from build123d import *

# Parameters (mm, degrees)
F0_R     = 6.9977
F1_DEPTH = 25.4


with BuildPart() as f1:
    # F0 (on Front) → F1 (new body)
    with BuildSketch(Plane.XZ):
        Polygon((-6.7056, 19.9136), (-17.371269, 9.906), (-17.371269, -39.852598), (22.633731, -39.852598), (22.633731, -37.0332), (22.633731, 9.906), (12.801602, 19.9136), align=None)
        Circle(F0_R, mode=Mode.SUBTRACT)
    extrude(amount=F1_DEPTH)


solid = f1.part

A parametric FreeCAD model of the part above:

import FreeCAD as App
import Part
import Sketcher
Q = App.Units.Quantity

doc = App.newDocument("Part")
body = doc.addObject("PartDesign::Body", "Body")

sketch1 = body.newObject("Sketcher::SketchObject", "Sketch")
sketch1.AttachmentSupport = (doc.getObject("XZ_Plane"), [""])
sketch1.MapMode = "FlatFace"
sketch1.addGeometry([
    Part.LineSegment(App.Vector(-7, 20, 0), App.Vector(-17, 10, 0)),
    Part.LineSegment(App.Vector(-17, 10, 0), App.Vector(-17, -40, 0)),
    Part.LineSegment(App.Vector(-17, -40, 0), App.Vector(23, -40, 0)),
    Part.LineSegment(App.Vector(23, -40, 0), App.Vector(23, 10, 0)),
    Part.LineSegment(App.Vector(23, 10, 0), App.Vector(13, 20, 0)),
    Part.LineSegment(App.Vector(13, 20, 0), App.Vector(-7, 20, 0)),
    Part.Circle(App.Vector(0, 0, 0), App.Vector(0, 0, 1), 7),
], False)
sketch1.addConstraint([
    Sketcher.Constraint("Coincident", 0, 2, 1, 1),
    Sketcher.Constraint("Coincident", 1, 2, 2, 1),
    Sketcher.Constraint("Coincident", 2, 2, 3, 1),
    Sketcher.Constraint("Coincident", 3, 2, 4, 1),
    Sketcher.Constraint("Coincident", 4, 2, 5, 1),
    Sketcher.Constraint("Coincident", 5, 2, 0, 1),
    Sketcher.Constraint("Vertical", 1),
    Sketcher.Constraint("Horizontal", 2),
    Sketcher.Constraint("Vertical", 3),
    Sketcher.Constraint("Horizontal", 5),
    Sketcher.Constraint("Coincident", 6, 3, -1, 1),
    Sketcher.Constraint("Horizontal", 0, 2, 3, 2),
    Sketcher.Constraint("Diameter", 6, Q("0.551 in")),
    Sketcher.Constraint("DistanceX", 2, 1, 2, 2, Q("1.575 in")),
    Sketcher.Constraint("DistanceX", 5, 2, 5, 1, Q("0.7680001 in")),
    Sketcher.Constraint("DistanceY", 1, 2, 1, 1, Q("1.9589999 in")),
    Sketcher.Constraint("DistanceY", -1, 1, 0, 2, Q("0.39 in")),
    Sketcher.Constraint("DistanceX", -1, 1, 4, 2, Q("0.5040001 in")),
    Sketcher.Constraint("DistanceY", -1, 1, 4, 2, Q("0.784 in")),
    Sketcher.Constraint("DistanceX", 0, 2, -1, 1, Q("17.371269 mm")),
])
pad1 = body.newObject("PartDesign::Pad", "Pad")
pad1.Profile = sketch1
pad1.Length = Q("1 in")

doc.recompute()
